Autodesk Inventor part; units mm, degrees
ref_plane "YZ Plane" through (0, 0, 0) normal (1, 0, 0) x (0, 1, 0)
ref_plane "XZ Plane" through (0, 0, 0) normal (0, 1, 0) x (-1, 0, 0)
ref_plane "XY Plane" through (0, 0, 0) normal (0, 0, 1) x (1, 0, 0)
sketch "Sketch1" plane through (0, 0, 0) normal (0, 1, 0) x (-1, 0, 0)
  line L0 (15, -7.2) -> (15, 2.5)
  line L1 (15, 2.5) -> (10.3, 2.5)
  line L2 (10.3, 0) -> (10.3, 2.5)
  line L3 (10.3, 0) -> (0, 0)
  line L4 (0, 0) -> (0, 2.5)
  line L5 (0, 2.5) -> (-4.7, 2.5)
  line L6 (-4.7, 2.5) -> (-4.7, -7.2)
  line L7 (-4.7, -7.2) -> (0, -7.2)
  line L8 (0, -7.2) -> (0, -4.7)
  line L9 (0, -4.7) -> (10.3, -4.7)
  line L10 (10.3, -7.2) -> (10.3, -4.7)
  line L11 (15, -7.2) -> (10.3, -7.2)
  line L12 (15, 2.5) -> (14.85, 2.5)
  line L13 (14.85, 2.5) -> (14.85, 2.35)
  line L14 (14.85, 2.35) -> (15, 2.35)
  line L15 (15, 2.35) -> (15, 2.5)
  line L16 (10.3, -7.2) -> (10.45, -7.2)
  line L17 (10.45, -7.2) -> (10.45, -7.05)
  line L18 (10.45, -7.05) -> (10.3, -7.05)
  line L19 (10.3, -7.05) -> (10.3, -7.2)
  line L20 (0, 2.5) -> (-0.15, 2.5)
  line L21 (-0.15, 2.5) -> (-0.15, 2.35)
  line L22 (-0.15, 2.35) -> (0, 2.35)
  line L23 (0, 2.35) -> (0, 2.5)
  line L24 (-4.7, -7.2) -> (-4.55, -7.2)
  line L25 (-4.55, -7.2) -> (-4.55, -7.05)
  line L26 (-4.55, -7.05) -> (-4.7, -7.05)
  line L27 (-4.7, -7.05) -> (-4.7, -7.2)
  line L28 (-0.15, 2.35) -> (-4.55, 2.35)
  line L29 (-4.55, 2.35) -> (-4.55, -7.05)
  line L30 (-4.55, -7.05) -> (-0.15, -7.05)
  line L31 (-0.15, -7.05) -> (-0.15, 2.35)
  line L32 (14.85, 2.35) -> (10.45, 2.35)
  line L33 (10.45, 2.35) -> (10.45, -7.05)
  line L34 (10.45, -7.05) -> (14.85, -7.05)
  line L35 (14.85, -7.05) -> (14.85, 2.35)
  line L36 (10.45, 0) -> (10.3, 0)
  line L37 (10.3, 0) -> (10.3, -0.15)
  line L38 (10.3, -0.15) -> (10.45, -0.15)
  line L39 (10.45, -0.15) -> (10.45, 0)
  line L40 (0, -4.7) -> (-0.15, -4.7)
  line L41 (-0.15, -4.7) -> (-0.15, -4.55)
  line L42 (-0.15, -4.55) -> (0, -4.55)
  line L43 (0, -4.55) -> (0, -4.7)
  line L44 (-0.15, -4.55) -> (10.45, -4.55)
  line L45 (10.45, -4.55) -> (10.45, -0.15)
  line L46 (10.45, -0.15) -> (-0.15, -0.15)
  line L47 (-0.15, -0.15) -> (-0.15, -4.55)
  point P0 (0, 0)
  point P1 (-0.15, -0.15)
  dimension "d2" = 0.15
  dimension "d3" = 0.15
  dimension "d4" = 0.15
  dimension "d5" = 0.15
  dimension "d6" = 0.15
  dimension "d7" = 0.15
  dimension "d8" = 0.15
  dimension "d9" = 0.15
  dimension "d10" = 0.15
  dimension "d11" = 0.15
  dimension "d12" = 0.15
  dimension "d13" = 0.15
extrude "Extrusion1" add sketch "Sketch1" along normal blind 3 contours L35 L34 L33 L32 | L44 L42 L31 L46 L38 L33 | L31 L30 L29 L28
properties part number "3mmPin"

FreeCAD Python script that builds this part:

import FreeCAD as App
import Part
import Sketcher
from FreeCAD import Vector
Q = App.Units.Quantity


def add_polygon(sketch, points):
    """Adds a closed chain of lines whose ends are joined by coincident constraints."""
    first, n = sketch.GeometryCount, len(points)
    for a, b in zip(points, points[1:] + points[:1]):
        sketch.addGeometry(Part.LineSegment(App.Vector(*a, 0), App.Vector(*b, 0)), False)
    for i in range(n):
        sketch.addConstraint(Sketcher.Constraint("Coincident", first + i, 2, first + (i + 1) % n, 1))

doc = App.newDocument("Part")
body = doc.addObject("PartDesign::Body", "Body")

# Sketch on XZ plane
sketch1 = doc.addObject("Sketcher::SketchObject", "Sketch")
body.addObject(sketch1)
sketch1.AttachmentSupport = (doc.XZ_Plane, [""])
sketch1.MapMode = "FlatFace"
add_polygon(sketch1, [(-14.8, -7), (-14.8, 2.4), (-10.4, 2.4), (-10.4, -0.1), (0.1, -0.1), (0.1, 2.4), (4.5, 2.4), (4.5, -7), (0.1, -7), (0.1, -4.5), (-10.4, -4.5), (-10.4, -7)])  # lines 0-11
sketch1.addConstraint(Sketcher.Constraint("Vertical", 0))
sketch1.addConstraint(Sketcher.Constraint("Horizontal", 1))
sketch1.addConstraint(Sketcher.Constraint("Vertical", 2))
sketch1.addConstraint(Sketcher.Constraint("Horizontal", 3))
sketch1.addConstraint(Sketcher.Constraint("Vertical", 4))
sketch1.addConstraint(Sketcher.Constraint("Horizontal", 5))
sketch1.addConstraint(Sketcher.Constraint("Vertical", 6))
sketch1.addConstraint(Sketcher.Constraint("Horizontal", 7))
sketch1.addConstraint(Sketcher.Constraint("Vertical", 8))
sketch1.addConstraint(Sketcher.Constraint("Horizontal", 9))
sketch1.addConstraint(Sketcher.Constraint("Vertical", 10))
sketch1.addConstraint(Sketcher.Constraint("Horizontal", 11))
sketch1.addConstraint(Sketcher.Constraint("Horizontal", 1, 2, 4, 2))
sketch1.addConstraint(Sketcher.Constraint("Horizontal", 7, 2, 10, 2))
sketch1.addConstraint(Sketcher.Constraint("Vertical", 4, 2, 7, 2))
sketch1.addConstraint(Sketcher.Constraint("Vertical", 2, 2, 9, 2))
sketch1.addConstraint(Sketcher.Constraint("Equal", 1, 5))
sketch1.addConstraint(Sketcher.Constraint("Equal", 4, 8))
sketch1.addConstraint(Sketcher.Constraint("DistanceY", 2, 2, -1, 1, Q("0.15 mm")))
sketch1.addConstraint(Sketcher.Constraint("DistanceX", -1, 1, 3, 2, Q("0.15 mm")))
sketch1.addConstraint(Sketcher.Constraint("DistanceX", 1, 1, 1, 2, Q("4.4 mm")))
sketch1.addConstraint(Sketcher.Constraint("DistanceX", 3, 1, 3, 2, Q("10.6 mm")))
sketch1.addConstraint(Sketcher.Constraint("DistanceY", 0, 1, 0, 2, Q("9.4 mm")))
sketch1.addConstraint(Sketcher.Constraint("DistanceY", 2, 2, 2, 1, Q("2.5 mm")))
pad1 = doc.addObject("PartDesign::Pad", "Pad")
body.addObject(pad1)
pad1.Profile = sketch1
pad1.Length = 3
pad1.Reversed = True

doc.recompute()
